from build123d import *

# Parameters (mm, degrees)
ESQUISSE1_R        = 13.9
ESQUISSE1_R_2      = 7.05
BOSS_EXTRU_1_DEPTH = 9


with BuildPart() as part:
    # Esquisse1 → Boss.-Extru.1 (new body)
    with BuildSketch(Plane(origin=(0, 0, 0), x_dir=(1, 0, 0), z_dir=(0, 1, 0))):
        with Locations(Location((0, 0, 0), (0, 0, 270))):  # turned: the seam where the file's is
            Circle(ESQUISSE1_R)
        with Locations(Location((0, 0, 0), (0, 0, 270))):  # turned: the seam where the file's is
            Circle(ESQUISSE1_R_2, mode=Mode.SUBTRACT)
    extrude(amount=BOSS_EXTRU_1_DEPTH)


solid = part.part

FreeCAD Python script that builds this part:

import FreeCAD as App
import Part
import Sketcher
from FreeCAD import Vector

doc = App.newDocument("Part")
params = doc.addObject("Spreadsheet::Sheet", "Params")
for row, (alias, value) in enumerate([
    ("sketch1_diameter", "27.8 mm"),
    ("sketch1_diameter2", "14.1 mm"),
    ("pad1_length", "9 mm"),
], start=1):
    params.set(f"A{row}", alias)
    params.set(f"B{row}", "=" + value)
    params.setAlias(f"B{row}", alias)

body = doc.addObject("PartDesign::Body", "Body")

sketch1 = doc.addObject("Sketcher::SketchObject", "Sketch")
body.addObject(sketch1)
sketch1.AttachmentSupport = (doc.XZ_Plane, [""])
sketch1.MapMode = "FlatFace"
sketch1.addGeometry([
    Part.Circle(Vector(0, 0, 0), Vector(0, 0, 1), 14),
    Part.Circle(Vector(0, 0, 0), Vector(0, 0, 1), 7),
], False)
sketch1.addConstraint([
    Sketcher.Constraint("Coincident", 0, 3, -1, 1),
    Sketcher.Constraint("Coincident", 1, 3, -1, 1),
    Sketcher.Constraint("Diameter", 0, 27.8),
    Sketcher.Constraint("Diameter", 1, 14.1),
])
sketch1.setExpression("Constraints[2]", "Params.sketch1_diameter")
sketch1.setExpression("Constraints[3]", "Params.sketch1_diameter2")
pad1 = doc.addObject("PartDesign::Pad", "Pad")
body.addObject(pad1)
pad1.Profile = sketch1
pad1.setExpression("Length", "Params.pad1_length")
pad1.Reversed = True

doc.recompute()
